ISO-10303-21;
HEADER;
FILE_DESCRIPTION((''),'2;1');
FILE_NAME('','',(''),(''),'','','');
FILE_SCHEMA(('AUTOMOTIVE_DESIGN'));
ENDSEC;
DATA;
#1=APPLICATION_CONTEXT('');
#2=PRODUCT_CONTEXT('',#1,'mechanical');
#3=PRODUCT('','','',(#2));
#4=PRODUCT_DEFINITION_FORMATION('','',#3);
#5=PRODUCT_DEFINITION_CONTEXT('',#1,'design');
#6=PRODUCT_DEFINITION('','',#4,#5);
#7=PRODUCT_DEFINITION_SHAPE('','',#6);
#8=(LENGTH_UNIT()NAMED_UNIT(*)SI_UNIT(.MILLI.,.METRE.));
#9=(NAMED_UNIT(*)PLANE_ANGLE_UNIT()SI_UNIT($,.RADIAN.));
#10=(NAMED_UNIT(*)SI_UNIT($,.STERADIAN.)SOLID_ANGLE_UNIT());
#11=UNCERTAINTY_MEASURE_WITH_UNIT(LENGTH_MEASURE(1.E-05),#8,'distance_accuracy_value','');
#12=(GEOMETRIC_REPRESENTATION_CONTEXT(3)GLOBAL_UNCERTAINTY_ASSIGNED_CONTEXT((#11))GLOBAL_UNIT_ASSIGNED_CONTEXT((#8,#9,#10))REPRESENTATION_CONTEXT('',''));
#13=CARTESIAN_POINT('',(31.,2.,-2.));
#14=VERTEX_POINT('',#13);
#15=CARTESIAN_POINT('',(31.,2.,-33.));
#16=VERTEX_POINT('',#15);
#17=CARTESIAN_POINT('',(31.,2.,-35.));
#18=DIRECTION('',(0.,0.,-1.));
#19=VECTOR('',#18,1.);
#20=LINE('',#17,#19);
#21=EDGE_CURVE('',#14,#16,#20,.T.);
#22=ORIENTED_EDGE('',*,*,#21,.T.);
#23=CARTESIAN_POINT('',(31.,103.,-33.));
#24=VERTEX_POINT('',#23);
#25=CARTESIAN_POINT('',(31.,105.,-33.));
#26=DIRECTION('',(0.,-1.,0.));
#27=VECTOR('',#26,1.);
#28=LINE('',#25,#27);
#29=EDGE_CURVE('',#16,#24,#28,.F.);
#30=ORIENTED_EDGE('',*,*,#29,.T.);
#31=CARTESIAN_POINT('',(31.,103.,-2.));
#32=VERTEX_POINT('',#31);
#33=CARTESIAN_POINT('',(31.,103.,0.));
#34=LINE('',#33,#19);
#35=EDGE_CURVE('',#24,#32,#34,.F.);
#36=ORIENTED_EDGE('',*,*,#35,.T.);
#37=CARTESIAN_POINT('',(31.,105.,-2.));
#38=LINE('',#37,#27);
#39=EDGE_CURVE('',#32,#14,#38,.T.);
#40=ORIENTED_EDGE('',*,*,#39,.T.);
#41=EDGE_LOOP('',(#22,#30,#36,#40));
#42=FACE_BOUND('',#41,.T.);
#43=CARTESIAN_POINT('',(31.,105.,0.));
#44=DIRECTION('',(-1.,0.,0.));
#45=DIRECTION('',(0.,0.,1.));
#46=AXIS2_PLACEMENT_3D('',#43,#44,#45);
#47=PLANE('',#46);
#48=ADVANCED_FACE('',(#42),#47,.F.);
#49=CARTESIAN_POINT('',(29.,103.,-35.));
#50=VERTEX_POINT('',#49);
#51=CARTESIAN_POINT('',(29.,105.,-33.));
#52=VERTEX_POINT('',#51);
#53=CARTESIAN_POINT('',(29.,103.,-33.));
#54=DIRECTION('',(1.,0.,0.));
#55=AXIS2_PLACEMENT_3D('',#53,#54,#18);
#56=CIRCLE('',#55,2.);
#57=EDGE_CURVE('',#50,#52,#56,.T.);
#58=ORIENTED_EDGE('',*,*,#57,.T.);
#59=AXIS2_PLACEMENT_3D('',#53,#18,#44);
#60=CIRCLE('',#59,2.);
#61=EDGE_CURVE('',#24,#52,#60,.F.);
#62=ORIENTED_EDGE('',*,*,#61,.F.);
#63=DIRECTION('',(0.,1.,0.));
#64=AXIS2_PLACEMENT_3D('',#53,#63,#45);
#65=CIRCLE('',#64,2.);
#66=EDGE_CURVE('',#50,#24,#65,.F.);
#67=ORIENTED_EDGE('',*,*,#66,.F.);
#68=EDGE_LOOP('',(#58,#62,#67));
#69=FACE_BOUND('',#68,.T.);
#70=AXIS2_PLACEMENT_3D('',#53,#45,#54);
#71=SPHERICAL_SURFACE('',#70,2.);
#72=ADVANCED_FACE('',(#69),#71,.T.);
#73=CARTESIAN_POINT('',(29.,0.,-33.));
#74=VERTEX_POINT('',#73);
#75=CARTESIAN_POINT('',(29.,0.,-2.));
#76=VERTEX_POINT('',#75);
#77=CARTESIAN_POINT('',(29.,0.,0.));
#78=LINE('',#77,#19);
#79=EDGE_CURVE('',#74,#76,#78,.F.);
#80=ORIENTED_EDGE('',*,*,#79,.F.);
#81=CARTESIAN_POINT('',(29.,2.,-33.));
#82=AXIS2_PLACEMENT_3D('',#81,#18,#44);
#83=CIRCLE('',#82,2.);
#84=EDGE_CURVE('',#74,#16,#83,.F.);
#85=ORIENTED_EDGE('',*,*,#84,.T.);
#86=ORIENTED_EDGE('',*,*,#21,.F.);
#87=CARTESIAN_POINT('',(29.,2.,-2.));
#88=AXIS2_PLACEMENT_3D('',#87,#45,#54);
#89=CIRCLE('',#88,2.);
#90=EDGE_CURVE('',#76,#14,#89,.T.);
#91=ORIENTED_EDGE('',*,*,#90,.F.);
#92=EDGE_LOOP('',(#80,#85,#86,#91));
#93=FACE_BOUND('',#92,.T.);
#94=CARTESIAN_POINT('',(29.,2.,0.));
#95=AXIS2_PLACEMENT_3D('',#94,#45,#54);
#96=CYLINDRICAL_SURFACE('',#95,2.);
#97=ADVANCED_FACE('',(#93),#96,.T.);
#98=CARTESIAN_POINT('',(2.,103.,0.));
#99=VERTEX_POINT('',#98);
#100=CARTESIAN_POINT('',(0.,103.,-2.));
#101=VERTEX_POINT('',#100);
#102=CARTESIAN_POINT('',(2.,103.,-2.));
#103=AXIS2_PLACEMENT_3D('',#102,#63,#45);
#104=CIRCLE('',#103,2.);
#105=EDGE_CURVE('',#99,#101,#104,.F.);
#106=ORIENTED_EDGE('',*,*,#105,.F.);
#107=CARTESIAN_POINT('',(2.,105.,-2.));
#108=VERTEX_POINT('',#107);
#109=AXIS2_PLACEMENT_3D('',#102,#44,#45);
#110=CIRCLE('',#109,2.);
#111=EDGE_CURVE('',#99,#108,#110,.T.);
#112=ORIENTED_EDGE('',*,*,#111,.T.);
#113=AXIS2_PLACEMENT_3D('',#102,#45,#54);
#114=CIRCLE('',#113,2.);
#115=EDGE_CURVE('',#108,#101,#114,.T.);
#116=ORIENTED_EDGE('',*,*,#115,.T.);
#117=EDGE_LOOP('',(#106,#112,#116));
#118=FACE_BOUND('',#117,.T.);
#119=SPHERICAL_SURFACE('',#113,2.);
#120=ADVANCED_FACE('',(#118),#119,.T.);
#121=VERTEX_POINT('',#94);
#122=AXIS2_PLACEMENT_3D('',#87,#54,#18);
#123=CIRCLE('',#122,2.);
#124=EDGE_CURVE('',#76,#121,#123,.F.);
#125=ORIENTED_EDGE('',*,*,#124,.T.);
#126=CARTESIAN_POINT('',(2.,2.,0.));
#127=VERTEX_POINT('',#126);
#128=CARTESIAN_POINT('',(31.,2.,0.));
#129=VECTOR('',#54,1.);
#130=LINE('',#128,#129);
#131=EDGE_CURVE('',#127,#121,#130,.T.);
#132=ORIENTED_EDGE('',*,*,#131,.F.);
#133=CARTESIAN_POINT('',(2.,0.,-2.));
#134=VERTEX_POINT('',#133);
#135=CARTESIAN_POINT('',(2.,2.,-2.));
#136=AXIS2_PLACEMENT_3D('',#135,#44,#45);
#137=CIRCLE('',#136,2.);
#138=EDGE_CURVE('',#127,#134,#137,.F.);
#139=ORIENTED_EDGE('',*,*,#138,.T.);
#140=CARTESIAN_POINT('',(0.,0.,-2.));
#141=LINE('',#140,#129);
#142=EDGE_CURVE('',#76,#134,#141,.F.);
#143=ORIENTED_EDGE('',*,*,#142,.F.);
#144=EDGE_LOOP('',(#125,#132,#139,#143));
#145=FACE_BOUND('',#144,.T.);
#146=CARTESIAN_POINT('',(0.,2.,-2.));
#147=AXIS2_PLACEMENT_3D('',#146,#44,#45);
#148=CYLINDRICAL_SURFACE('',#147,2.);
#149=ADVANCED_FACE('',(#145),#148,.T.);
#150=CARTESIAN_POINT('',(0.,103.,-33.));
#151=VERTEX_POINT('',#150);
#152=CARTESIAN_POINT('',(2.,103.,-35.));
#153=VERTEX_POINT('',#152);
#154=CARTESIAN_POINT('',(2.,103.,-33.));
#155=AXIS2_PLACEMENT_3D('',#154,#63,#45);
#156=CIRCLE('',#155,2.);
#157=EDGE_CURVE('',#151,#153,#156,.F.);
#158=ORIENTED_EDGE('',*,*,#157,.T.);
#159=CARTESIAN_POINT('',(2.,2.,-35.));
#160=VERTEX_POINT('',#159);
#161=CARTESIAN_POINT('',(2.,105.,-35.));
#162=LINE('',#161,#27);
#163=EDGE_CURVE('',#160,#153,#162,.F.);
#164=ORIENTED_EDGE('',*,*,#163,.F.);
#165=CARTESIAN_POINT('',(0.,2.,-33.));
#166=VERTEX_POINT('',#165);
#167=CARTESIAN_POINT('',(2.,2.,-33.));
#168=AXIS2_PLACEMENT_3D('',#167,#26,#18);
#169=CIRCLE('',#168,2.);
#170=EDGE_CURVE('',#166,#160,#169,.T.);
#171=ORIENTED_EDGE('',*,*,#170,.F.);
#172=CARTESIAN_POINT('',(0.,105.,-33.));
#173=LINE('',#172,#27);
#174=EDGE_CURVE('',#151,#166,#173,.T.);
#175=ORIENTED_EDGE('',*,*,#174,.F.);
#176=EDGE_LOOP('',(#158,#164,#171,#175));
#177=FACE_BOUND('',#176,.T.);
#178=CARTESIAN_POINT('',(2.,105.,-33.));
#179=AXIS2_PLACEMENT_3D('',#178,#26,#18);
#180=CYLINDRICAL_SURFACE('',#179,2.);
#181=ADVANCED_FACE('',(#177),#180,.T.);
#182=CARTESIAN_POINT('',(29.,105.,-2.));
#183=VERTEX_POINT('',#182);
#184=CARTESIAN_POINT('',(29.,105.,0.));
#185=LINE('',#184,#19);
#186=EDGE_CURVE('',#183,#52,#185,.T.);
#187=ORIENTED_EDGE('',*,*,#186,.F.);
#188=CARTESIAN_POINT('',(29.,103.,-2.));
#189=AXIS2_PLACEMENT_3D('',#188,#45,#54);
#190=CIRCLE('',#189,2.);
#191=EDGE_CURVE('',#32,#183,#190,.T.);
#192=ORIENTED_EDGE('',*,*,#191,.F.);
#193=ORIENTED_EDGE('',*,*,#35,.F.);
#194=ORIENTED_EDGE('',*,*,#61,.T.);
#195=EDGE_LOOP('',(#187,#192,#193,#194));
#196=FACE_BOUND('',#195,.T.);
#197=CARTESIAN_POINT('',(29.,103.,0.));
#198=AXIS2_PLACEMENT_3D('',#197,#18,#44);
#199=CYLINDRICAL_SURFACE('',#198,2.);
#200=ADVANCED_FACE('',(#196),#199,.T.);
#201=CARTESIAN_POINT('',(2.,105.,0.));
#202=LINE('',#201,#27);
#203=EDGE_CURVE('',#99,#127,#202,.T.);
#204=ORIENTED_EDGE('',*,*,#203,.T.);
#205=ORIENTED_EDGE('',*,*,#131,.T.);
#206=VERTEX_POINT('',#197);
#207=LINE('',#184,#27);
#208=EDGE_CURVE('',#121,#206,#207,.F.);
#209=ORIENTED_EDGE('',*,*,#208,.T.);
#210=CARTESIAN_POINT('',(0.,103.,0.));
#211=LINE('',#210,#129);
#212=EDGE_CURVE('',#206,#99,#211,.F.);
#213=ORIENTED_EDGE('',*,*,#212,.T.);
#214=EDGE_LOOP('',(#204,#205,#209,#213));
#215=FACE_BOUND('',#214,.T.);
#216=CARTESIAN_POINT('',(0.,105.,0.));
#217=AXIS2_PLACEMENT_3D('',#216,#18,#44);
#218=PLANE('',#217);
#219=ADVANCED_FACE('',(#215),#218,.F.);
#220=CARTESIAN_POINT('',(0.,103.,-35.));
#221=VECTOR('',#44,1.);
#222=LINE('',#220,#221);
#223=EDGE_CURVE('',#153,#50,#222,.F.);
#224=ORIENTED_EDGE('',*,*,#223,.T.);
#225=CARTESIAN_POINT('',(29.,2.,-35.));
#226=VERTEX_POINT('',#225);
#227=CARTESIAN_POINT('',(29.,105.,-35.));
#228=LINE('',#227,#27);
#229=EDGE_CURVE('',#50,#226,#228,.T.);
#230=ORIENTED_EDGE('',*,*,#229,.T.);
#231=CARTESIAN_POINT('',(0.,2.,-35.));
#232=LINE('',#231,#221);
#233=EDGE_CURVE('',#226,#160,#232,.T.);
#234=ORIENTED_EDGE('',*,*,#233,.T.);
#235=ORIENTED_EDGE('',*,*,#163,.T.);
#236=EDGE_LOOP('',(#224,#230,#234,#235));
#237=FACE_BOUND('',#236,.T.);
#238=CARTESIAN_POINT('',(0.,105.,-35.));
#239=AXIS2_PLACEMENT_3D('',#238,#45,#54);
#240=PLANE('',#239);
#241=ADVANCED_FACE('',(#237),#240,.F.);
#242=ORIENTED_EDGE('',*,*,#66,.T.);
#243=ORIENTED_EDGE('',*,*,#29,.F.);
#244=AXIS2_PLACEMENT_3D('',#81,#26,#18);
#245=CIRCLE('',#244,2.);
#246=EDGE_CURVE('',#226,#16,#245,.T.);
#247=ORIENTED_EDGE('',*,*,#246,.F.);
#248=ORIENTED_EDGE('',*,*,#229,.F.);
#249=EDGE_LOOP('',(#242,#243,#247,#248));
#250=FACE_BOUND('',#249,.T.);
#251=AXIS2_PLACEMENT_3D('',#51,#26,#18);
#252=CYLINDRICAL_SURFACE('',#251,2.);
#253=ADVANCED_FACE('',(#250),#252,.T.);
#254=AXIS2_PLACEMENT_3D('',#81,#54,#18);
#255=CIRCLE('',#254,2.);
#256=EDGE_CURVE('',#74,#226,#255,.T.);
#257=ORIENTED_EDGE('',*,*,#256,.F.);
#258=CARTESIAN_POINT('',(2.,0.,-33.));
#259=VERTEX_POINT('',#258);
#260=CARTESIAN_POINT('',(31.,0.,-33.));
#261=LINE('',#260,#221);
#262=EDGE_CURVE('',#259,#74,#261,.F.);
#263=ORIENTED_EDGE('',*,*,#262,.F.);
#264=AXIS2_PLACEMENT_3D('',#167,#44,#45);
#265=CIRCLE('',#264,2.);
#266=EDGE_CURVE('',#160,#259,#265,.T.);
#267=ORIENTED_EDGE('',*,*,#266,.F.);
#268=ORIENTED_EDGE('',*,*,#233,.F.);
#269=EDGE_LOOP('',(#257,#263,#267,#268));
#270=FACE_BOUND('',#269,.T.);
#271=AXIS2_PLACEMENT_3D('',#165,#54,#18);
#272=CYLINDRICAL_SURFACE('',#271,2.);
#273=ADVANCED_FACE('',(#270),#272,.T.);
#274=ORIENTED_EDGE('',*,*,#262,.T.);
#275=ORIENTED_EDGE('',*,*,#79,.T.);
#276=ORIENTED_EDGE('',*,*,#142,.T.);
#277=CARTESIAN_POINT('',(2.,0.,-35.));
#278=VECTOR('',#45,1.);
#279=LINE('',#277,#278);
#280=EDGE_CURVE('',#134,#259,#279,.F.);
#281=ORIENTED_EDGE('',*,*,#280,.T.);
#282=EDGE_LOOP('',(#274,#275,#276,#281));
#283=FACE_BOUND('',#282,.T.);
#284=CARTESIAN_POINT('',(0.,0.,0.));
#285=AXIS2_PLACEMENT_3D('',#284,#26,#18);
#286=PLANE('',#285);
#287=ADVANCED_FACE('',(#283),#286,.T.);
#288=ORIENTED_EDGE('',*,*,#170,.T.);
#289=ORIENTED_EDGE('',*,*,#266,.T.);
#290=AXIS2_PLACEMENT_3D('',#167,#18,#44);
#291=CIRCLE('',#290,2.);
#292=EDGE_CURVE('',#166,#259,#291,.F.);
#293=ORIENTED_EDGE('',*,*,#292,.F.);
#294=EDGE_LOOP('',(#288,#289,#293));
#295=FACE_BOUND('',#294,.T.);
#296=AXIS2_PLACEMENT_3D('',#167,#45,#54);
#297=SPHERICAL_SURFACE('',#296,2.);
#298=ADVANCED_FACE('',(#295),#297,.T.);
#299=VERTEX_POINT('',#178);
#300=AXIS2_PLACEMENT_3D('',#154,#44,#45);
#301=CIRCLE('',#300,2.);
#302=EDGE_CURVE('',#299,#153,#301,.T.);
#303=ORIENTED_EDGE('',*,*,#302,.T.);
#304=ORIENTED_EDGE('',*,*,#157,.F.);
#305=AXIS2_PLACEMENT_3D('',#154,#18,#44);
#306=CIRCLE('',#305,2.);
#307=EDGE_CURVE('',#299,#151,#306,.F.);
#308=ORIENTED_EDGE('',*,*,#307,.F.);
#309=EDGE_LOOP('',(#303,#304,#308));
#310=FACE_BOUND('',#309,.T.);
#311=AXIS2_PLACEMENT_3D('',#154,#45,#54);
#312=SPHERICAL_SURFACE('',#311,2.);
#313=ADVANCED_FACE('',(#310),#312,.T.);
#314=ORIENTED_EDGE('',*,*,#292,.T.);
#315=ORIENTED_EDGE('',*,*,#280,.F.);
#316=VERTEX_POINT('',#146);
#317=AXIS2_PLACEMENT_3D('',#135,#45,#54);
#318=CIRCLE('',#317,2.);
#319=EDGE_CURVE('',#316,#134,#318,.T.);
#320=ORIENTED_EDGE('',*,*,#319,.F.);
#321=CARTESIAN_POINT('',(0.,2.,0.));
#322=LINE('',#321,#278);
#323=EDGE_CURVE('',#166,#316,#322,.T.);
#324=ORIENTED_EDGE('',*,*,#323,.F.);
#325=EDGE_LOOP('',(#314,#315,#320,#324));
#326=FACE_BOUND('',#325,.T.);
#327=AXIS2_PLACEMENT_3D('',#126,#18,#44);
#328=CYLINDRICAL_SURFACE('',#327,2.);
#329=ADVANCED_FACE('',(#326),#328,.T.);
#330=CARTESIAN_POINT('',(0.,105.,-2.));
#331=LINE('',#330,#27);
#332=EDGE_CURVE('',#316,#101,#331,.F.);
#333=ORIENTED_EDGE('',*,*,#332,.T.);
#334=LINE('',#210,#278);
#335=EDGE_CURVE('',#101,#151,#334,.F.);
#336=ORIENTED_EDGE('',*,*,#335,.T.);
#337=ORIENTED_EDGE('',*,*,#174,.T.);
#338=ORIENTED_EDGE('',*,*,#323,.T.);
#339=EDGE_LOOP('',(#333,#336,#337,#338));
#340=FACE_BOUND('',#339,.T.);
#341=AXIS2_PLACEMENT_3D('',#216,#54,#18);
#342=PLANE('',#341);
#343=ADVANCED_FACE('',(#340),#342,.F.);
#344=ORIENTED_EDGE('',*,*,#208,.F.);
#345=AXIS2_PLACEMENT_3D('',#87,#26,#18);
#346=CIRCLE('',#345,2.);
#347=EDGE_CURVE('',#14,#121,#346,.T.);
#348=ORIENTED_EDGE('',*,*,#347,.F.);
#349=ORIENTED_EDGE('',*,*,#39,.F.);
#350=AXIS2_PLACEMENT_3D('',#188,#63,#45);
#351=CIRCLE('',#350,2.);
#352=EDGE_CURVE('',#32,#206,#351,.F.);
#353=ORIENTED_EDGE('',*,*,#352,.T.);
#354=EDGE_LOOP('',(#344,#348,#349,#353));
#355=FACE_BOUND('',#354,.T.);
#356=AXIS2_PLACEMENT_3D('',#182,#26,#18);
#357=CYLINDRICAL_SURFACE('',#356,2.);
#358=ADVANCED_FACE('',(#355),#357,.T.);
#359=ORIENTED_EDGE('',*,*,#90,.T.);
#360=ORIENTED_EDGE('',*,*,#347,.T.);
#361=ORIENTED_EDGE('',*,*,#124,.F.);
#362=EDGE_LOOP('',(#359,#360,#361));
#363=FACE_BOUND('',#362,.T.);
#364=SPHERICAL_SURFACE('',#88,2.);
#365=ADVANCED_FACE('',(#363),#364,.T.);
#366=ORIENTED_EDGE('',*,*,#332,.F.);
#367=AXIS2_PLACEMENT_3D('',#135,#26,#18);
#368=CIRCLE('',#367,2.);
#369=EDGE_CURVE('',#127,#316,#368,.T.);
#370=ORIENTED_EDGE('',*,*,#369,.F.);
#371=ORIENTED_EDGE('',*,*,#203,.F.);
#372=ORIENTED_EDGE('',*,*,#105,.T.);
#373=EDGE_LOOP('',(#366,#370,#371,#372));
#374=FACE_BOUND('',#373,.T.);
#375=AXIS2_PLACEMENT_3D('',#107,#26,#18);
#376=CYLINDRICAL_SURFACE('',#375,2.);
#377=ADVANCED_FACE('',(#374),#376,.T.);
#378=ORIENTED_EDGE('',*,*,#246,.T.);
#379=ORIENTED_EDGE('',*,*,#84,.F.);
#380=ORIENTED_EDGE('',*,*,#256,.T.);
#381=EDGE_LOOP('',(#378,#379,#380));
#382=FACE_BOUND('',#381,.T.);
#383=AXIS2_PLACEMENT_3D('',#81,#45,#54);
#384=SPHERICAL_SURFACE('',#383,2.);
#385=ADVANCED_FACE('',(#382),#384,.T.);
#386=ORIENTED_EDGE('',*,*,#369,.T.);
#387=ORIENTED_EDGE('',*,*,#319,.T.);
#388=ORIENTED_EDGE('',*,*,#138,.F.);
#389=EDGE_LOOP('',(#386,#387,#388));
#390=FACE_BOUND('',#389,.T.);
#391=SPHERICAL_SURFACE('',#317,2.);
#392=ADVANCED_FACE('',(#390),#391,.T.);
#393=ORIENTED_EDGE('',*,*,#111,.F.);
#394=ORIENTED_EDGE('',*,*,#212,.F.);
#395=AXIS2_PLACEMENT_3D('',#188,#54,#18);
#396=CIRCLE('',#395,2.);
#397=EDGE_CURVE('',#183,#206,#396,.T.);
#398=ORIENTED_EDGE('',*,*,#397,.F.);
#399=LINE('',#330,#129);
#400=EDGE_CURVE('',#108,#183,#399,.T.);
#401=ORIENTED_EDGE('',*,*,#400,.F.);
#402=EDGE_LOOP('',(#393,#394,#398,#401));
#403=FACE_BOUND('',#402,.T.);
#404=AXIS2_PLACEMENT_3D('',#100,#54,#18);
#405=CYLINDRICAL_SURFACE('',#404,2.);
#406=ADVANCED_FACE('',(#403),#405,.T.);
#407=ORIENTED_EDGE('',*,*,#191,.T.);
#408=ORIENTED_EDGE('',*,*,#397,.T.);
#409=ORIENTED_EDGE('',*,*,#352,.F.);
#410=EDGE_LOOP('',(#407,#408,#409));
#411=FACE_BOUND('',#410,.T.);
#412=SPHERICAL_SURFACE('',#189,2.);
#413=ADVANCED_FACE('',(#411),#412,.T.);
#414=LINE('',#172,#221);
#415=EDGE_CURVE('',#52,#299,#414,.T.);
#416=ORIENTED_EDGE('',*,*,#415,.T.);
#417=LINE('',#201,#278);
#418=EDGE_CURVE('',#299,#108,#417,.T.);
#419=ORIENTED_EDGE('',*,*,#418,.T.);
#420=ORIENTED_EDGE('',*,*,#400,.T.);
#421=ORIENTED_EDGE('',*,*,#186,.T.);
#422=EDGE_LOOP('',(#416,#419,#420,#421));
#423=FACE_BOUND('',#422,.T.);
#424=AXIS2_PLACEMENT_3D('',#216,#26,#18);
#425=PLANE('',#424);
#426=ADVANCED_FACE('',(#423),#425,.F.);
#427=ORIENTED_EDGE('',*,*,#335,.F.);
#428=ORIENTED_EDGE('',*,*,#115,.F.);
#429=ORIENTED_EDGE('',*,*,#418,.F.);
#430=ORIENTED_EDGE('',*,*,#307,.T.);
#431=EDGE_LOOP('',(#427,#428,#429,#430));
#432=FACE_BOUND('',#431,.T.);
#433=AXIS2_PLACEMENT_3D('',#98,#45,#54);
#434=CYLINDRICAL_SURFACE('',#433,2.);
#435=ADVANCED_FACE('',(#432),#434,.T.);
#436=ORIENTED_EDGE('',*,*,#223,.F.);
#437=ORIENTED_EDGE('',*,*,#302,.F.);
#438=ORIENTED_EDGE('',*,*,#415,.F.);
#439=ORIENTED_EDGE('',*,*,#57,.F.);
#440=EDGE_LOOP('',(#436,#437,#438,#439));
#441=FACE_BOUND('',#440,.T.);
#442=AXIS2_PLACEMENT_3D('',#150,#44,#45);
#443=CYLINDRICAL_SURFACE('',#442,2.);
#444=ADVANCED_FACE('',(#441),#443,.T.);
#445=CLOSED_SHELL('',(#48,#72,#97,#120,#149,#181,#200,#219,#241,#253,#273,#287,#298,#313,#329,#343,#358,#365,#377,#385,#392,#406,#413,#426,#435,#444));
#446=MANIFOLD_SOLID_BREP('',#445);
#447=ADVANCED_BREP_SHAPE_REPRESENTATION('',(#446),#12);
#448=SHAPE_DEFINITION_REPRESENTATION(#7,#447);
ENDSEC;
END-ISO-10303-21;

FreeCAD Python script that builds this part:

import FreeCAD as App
import Part
import Sketcher
from FreeCAD import Vector

doc = App.newDocument("Part")
body = doc.addObject("PartDesign::Body", "Body")

# Sketch on XZ plane
sketch1 = body.newObject("Sketcher::SketchObject", "Sketch")
sketch1.AttachmentSupport = (doc.getObject("XZ_Plane"), [""])
sketch1.MapMode = "FlatFace"
sketch1.addGeometry(Part.LineSegment(Vector(0, -35, 0), Vector(0, 0, 0)), False)
sketch1.addGeometry(Part.LineSegment(Vector(0, 0, 0), Vector(31, 0, 0)), False)
sketch1.addGeometry(Part.LineSegment(Vector(31, 0, 0), Vector(31, -35, 0)), False)
sketch1.addGeometry(Part.LineSegment(Vector(31, -35, 0), Vector(0, -35, 0)), False)
sketch1.addConstraint(Sketcher.Constraint("Coincident", 0, 2, 1, 1))
sketch1.addConstraint(Sketcher.Constraint("Coincident", 1, 2, 2, 1))
sketch1.addConstraint(Sketcher.Constraint("Coincident", 2, 2, 3, 1))
sketch1.addConstraint(Sketcher.Constraint("Coincident", 3, 2, 0, 1))
sketch1.addConstraint(Sketcher.Constraint("Vertical", 0))
sketch1.addConstraint(Sketcher.Constraint("Horizontal", 1))
sketch1.addConstraint(Sketcher.Constraint("Vertical", 2))
sketch1.addConstraint(Sketcher.Constraint("Horizontal", 3))
sketch1.addConstraint(Sketcher.Constraint("Coincident", 0, 2, -1, 1))
sketch1.addConstraint(Sketcher.Constraint("DistanceX", 1, 1, 1, 2, 31.0))
sketch1.addConstraint(Sketcher.Constraint("DistanceY", 0, 1, 0, 2, 35.0))
pad1 = body.newObject("PartDesign::Pad", "Pad")
pad1.Profile = sketch1
pad1.Length = 105
pad1.Reversed = True
doc.recompute()

fillet = body.newObject("PartDesign::Fillet", "Fillet")
fillet.Base = (pad1, ["Edge1"])
fillet.UseAllEdges = True
fillet.Radius = 2

doc.recompute()
